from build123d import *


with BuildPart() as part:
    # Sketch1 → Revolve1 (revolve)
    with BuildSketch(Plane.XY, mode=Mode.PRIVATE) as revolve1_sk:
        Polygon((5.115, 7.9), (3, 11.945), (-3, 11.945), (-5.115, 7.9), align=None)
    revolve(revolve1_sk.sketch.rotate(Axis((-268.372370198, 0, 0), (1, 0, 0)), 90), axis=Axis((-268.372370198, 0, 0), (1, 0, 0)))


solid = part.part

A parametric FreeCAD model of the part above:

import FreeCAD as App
import Part
import Sketcher
from FreeCAD import Vector

doc = App.newDocument("Part")
body = doc.addObject("PartDesign::Body", "Body")

sketch1 = body.newObject("Sketcher::SketchObject", "Sketch")
sketch1.AttachmentSupport = (doc.getObject("XY_Plane"), [""])
sketch1.MapMode = "FlatFace"
sketch1.addGeometry(Part.LineSegment(Vector(5.115, 7.9, 0), Vector(3, 11.945, 0)), False)
sketch1.addGeometry(Part.LineSegment(Vector(3, 11.945, 0), Vector(-3, 11.945, 0)), False)
sketch1.addGeometry(Part.LineSegment(Vector(-3, 11.945, 0), Vector(-5.115, 7.9, 0)), False)
sketch1.addGeometry(Part.LineSegment(Vector(-5.115, 7.9, 0), Vector(5.115, 7.9, 0)), False)
sketch1.addConstraint(Sketcher.Constraint("Coincident", 0, 2, 1, 1))
sketch1.addConstraint(Sketcher.Constraint("Coincident", 1, 2, 2, 1))
sketch1.addConstraint(Sketcher.Constraint("Coincident", 2, 2, 3, 1))
sketch1.addConstraint(Sketcher.Constraint("Coincident", 3, 2, 0, 1))
sketch1.addConstraint(Sketcher.Constraint("Horizontal", 1))
sketch1.addConstraint(Sketcher.Constraint("Horizontal", 3))
sketch1.addConstraint(Sketcher.Constraint("Equal", 0, 2))
sketch1.addConstraint(Sketcher.Constraint("DistanceX", 1, 2, 1, 1, 6.0))
sketch1.addConstraint(Sketcher.Constraint("DistanceX", -1, 1, 0, 2, 3.0))
sketch1.addConstraint(Sketcher.Constraint("DistanceX", 3, 1, 3, 2, 10.23))
sketch1.addConstraint(Sketcher.Constraint("DistanceY", -1, 1, 2, 2, 7.9))
sketch1.addConstraint(Sketcher.Constraint("DistanceY", -1, 1, 0, 2, 11.945))
revolution = body.newObject("PartDesign::Revolution", "Revolution")
revolution.Profile = sketch1
revolution.ReferenceAxis = (sketch1, ["H_Axis"])
revolution.Angle = 360

doc.recompute()
